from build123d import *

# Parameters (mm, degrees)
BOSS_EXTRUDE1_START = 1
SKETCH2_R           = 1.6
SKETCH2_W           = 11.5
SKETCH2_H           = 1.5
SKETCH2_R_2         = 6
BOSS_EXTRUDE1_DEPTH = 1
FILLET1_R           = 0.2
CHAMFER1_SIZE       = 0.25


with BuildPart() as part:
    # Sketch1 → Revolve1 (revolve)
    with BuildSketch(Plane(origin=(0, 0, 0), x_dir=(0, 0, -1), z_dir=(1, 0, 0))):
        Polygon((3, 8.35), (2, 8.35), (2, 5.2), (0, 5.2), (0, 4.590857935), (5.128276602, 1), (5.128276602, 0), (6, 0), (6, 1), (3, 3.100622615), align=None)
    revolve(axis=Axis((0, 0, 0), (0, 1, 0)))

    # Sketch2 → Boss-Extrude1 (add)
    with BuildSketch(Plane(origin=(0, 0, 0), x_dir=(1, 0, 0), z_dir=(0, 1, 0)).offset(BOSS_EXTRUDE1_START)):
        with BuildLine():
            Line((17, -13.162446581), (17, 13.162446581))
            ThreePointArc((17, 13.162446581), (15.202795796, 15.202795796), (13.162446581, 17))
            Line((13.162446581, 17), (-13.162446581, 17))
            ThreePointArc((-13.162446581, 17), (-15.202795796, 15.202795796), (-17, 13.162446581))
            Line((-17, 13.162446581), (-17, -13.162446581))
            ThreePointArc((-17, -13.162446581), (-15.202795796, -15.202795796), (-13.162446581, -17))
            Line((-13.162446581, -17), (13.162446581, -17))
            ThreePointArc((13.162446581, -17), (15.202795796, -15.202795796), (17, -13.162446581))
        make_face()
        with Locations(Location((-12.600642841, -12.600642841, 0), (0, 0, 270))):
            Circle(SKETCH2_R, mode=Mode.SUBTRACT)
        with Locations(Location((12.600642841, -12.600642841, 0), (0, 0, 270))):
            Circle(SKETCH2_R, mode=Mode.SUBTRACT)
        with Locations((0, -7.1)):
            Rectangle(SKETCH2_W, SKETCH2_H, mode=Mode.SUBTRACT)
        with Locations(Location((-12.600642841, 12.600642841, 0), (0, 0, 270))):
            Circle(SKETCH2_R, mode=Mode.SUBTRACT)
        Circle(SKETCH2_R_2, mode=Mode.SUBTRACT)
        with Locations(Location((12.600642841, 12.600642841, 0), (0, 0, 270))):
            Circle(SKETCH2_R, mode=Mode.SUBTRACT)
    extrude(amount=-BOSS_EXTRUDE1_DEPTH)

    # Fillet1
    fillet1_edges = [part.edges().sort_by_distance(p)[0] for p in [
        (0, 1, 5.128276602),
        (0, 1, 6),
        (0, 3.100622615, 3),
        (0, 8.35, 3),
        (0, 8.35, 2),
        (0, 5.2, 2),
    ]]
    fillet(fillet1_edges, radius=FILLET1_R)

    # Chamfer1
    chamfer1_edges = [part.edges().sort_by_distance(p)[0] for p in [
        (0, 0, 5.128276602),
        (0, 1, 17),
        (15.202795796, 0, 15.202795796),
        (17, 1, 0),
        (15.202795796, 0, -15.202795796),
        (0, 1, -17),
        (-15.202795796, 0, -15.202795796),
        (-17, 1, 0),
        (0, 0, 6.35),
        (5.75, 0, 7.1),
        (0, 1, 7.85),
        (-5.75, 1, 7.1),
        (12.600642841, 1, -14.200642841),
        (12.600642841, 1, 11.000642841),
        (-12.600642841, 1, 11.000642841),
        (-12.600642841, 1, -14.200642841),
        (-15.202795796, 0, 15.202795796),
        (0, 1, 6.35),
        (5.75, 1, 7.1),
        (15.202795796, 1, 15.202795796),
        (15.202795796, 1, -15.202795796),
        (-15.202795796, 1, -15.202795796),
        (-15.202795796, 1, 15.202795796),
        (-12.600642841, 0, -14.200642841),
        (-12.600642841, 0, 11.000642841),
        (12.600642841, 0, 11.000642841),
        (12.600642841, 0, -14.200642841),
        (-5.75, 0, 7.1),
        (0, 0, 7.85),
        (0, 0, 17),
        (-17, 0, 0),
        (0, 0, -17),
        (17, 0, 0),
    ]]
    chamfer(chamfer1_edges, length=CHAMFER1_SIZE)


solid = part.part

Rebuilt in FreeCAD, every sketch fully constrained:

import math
import FreeCAD as App
import Part
import Sketcher
from FreeCAD import Vector
Q = App.Units.Quantity


def edges_at(feature, points):
    """Names of the edges that pass closest to the given points."""
    edges = feature.Shape.Edges
    near = lambda p: min(range(len(edges)), key=lambda i: edges[i].distToShape(Part.Vertex(*p))[0])
    return sorted({f"Edge{near(p) + 1}" for p in points})

doc = App.newDocument("Part")
body = doc.addObject("PartDesign::Body", "Body")

sketch1 = body.newObject("Sketcher::SketchObject", "Sketch")
sketch1.AttachmentSupport = (doc.getObject("YZ_Plane"), [""])
sketch1.MapMode = "FlatFace"
sketch1.addGeometry([
    Part.LineSegment(Vector(8.35, -3, 0), Vector(8.35, -2, 0)),
    Part.LineSegment(Vector(8.35, -2, 0), Vector(5.2, -2, 0)),
    Part.LineSegment(Vector(5.2, -2, 0), Vector(5.2, 0, 0)),
    Part.LineSegment(Vector(5.2, 0, 0), Vector(4.590858, 0, 0)),
    Part.LineSegment(Vector(4.590858, 0, 0), Vector(1, -5.128277, 0)),
    Part.LineSegment(Vector(1, -5.128277, 0), Vector(0, -5.128277, 0)),
    Part.LineSegment(Vector(0, -5.128277, 0), Vector(0, -6, 0)),
    Part.LineSegment(Vector(0, -6, 0), Vector(1, -6, 0)),
    Part.LineSegment(Vector(1, -6, 0), Vector(3.100623, -3, 0)),
    Part.LineSegment(Vector(3.100623, -3, 0), Vector(8.35, -3, 0)),
], False)
sketch1.addConstraint([
    Sketcher.Constraint("Coincident", 0, 2, 1, 1),
    Sketcher.Constraint("Coincident", 1, 2, 2, 1),
    Sketcher.Constraint("Coincident", 2, 2, 3, 1),
    Sketcher.Constraint("Coincident", 3, 2, 4, 1),
    Sketcher.Constraint("Coincident", 4, 2, 5, 1),
    Sketcher.Constraint("Coincident", 5, 2, 6, 1),
    Sketcher.Constraint("Coincident", 6, 2, 7, 1),
    Sketcher.Constraint("Coincident", 7, 2, 8, 1),
    Sketcher.Constraint("Coincident", 8, 2, 9, 1),
    Sketcher.Constraint("Coincident", 9, 2, 0, 1),
    Sketcher.Constraint("Vertical", 0),
    Sketcher.Constraint("Horizontal", 1),
    Sketcher.Constraint("Vertical", 2),
    Sketcher.Constraint("Horizontal", 3),
    Sketcher.Constraint("Horizontal", 5),
    Sketcher.Constraint("Vertical", 6),
    Sketcher.Constraint("Horizontal", 7),
    Sketcher.Constraint("Horizontal", 9),
    Sketcher.Constraint("PointOnObject", 2, 2, -1),
    Sketcher.Constraint("PointOnObject", 5, 2, -2),
    Sketcher.Constraint("Parallel", 4, 8),
    Sketcher.Constraint("Vertical", 4, 2, 7, 2),
    Sketcher.Constraint("Equal", 7, 0),
    Sketcher.Constraint("DistanceX", 5, 2, 5, 1, Q("1 mm")),
    Sketcher.Constraint("DistanceY", 2, 1, 2, 2, Q("2 mm")),
    Sketcher.Constraint("Angle", 4, Q("-125 deg")),
    Sketcher.Constraint("DistanceY", 6, 2, -1, 1, Q("6 mm")),
    Sketcher.Constraint("DistanceX", 1, 2, 1, 1, Q("3.15 mm")),
    Sketcher.Constraint("DistanceX", -1, 1, 1, 2, Q("5.2 mm")),
    Sketcher.Constraint("Distance", 4, Q("6.26047 mm")),
])
revolution = body.newObject("PartDesign::Revolution", "Revolution")
revolution.Profile = sketch1
revolution.ReferenceAxis = (sketch1, ["H_Axis"])
revolution.Angle = 360

sketch2 = body.newObject("Sketcher::SketchObject", "Sketch001")
sketch2.AttachmentSupport = (doc.getObject("XZ_Plane"), [""])
sketch2.MapMode = "FlatFace"
sketch2.AttachmentOffset = App.Placement(Vector(0, 0, -1), App.Rotation())
sketch2.addGeometry([
    Part.LineSegment(Vector(17, 13.162447, 0), Vector(17, -13.162447, 0)),
    Part.ArcOfCircle(Part.Circle(Vector(0, 0, 0), Vector(0, 0, 1), 21.5), math.radians(-52.250758), math.radians(-37.749242)),
    Part.LineSegment(Vector(13.162447, -17, 0), Vector(-13.162447, -17, 0)),
    Part.ArcOfCircle(Part.Circle(Vector(0, 0, 0), Vector(0, 0, 1), 21.5), math.radians(-142.250758), math.radians(-127.749242)),
    Part.LineSegment(Vector(-17, -13.162447, 0), Vector(-17, 13.162447, 0)),
    Part.ArcOfCircle(Part.Circle(Vector(0, 0, 0), Vector(0, 0, 1), 21.5), math.radians(127.749242), math.radians(142.250758)),
    Part.LineSegment(Vector(-13.162447, 17, 0), Vector(13.162447, 17, 0)),
    Part.ArcOfCircle(Part.Circle(Vector(0, 0, 0), Vector(0, 0, 1), 21.5), math.radians(37.749242), math.radians(52.250758)),
    Part.Circle(Vector(-12.600643, 12.600643, 0), Vector(0, 0, 1), 1.6),
    Part.Circle(Vector(12.600643, 12.600643, 0), Vector(0, 0, 1), 1.6),
    Part.LineSegment(Vector(5.75, 7.85, 0), Vector(-5.75, 7.85, 0)),
    Part.LineSegment(Vector(-5.75, 7.85, 0), Vector(-5.75, 6.35, 0)),
    Part.LineSegment(Vector(-5.75, 6.35, 0), Vector(5.75, 6.35, 0)),
    Part.LineSegment(Vector(5.75, 6.35, 0), Vector(5.75, 7.85, 0)),
    Part.Circle(Vector(-12.600643, -12.600643, 0), Vector(0, 0, 1), 1.6),
    Part.Circle(Vector(0, 0, 0), Vector(0, 0, 1), 6),
    Part.Circle(Vector(12.600643, -12.600643, 0), Vector(0, 0, 1), 1.6),
], False)
sketch2.addConstraint([
    Sketcher.Constraint("Coincident", 0, 2, 1, 2),
    Sketcher.Constraint("Coincident", 1, 1, 2, 1),
    Sketcher.Constraint("Coincident", 2, 2, 3, 2),
    Sketcher.Constraint("Coincident", 3, 1, 4, 1),
    Sketcher.Constraint("Coincident", 4, 2, 5, 2),
    Sketcher.Constraint("Coincident", 5, 1, 6, 1),
    Sketcher.Constraint("Coincident", 6, 2, 7, 2),
    Sketcher.Constraint("Coincident", 7, 1, 0, 1),
    Sketcher.Constraint("Coincident", 10, 2, 11, 1),
    Sketcher.Constraint("Coincident", 11, 2, 12, 1),
    Sketcher.Constraint("Coincident", 12, 2, 13, 1),
    Sketcher.Constraint("Coincident", 13, 2, 10, 1),
    Sketcher.Constraint("Vertical", 0),
    Sketcher.Constraint("Horizontal", 2),
    Sketcher.Constraint("Vertical", 4),
    Sketcher.Constraint("Horizontal", 6),
    Sketcher.Constraint("Horizontal", 10),
    Sketcher.Constraint("Vertical", 11),
    Sketcher.Constraint("Horizontal", 12),
    Sketcher.Constraint("Vertical", 13),
    Sketcher.Constraint("Coincident", 1, 3, -1, 1),
    Sketcher.Constraint("Coincident", 3, 3, -1, 1),
    Sketcher.Constraint("Coincident", 5, 3, -1, 1),
    Sketcher.Constraint("Coincident", 7, 3, -1, 1),
    Sketcher.Constraint("Coincident", 15, 3, -1, 1),
    Sketcher.Constraint("Equal", 1, 3),
    Sketcher.Constraint("Equal", 3, 5),
    Sketcher.Constraint("Equal", 5, 7),
    Sketcher.Constraint("Equal", 8, 9),
    Sketcher.Constraint("Equal", 9, 14),
    Sketcher.Constraint("Equal", 14, 16),
    Sketcher.Constraint("Symmetric", 9, 3, 14, 3, -1, 1),
    Sketcher.Constraint("Symmetric", 8, 3, 16, 3, -1, 1),
    Sketcher.Constraint("Symmetric", 8, 3, 9, 3, -2),
    Sketcher.Constraint("Horizontal", 0, 2, 3, 1),
    Sketcher.Constraint("Vertical", 2, 2, 5, 1),
    Sketcher.Constraint("Equal", 6, 0),
    Sketcher.Constraint("Diameter", 15, Q("12 mm")),
    Sketcher.Constraint("Diameter", 8, Q("3.2 mm")),
    Sketcher.Constraint("Radius", 1, Q("21.5 mm")),
    Sketcher.Constraint("DistanceX", 10, 2, 10, 1, Q("11.5 mm")),
    Sketcher.Constraint("DistanceY", 11, 2, 11, 1, Q("1.5 mm")),
    Sketcher.Constraint("DistanceX", -1, 1, 0, 2, Q("17 mm")),
    Sketcher.Constraint("DistanceX", 10, 2, -1, 1, Q("5.75 mm")),
    Sketcher.Constraint("DistanceY", -1, 1, 10, 2, Q("7.85 mm")),
    Sketcher.Constraint("DistanceX", 8, 3, -1, 1, Q("12.600643 mm")),
    Sketcher.Constraint("DistanceY", -1, 1, 8, 3, Q("12.600643 mm")),
])
pad1 = body.newObject("PartDesign::Pad", "Pad")
pad1.Profile = sketch2
pad1.Length = 1
doc.recompute()

fillet = body.newObject("PartDesign::Fillet", "Fillet")
fillet.Base = (pad1, edges_at(pad1, [
    (0, 1, 5.128),
    (0, 1, 6),
    (0, 3.101, 3),
    (0, 8.35, 3),
    (0, 8.35, 2),
    (0, 5.2, 2),
]))
fillet.Radius = 0.2
doc.recompute()

chamfer = body.newObject("PartDesign::Chamfer", "Chamfer")
chamfer.Base = (fillet, edges_at(fillet, [
    (0, 0, 5.128),
    (0, 1, 17),
    (15.203, 0, 15.203),
    (17, 1, 0),
    (15.203, 0, -15.203),
    (0, 1, -17),
    (-15.203, 0, -15.203),
    (-17, 1, 0),
    (0, 0, 6.35),
    (5.75, 0, 7.1),
    (0, 1, 7.85),
    (-5.75, 1, 7.1),
    (12.601, 1, -14.201),
    (12.601, 1, 11.001),
    (-12.601, 1, 11.001),
    (-12.601, 1, -14.201),
    (-15.203, 0, 15.203),
    (0, 1, 6.35),
    (5.75, 1, 7.1),
    (15.203, 1, 15.203),
    (15.203, 1, -15.203),
    (-15.203, 1, -15.203),
    (-15.203, 1, 15.203),
    (-12.601, 0, -14.201),
    (-12.601, 0, 11.001),
    (12.601, 0, 11.001),
    (12.601, 0, -14.201),
    (-5.75, 0, 7.1),
    (0, 0, 7.85),
    (0, 0, 17),
    (-17, 0, 0),
    (0, 0, -17),
    (17, 0, 0),
]))
chamfer.Size = 0.25

doc.recompute()
